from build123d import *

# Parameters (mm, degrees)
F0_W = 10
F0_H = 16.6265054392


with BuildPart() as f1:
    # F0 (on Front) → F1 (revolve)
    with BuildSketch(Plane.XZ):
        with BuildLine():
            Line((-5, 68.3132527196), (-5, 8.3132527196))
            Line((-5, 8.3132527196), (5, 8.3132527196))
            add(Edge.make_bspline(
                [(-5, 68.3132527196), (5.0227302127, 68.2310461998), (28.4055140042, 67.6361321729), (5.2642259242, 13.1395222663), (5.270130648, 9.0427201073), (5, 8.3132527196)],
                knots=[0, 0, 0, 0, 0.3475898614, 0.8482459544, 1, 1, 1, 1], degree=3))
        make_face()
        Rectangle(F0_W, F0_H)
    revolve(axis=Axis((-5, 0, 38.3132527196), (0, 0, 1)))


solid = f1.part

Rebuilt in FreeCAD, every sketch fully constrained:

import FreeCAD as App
import Part
import Sketcher
from FreeCAD import Vector
Q = App.Units.Quantity

doc = App.newDocument("Part")
body = doc.addObject("PartDesign::Body", "Body")

# Sketch on XZ plane
sketch1 = body.newObject("Sketcher::SketchObject", "Sketch")
sketch1.AttachmentSupport = (doc.getObject("XZ_Plane"), [""])
sketch1.MapMode = "FlatFace"
sketch1.addGeometry([
    Part.LineSegment(Vector(-5, 68.313253, 0), Vector(-5, -8.313253, 0)),
    Part.LineSegment(Vector(-5, -8.313253, 0), Vector(5, -8.313253, 0)),
    Part.LineSegment(Vector(5, -8.313253, 0), Vector(5, 8.313253, 0)),
    Part.BSplineCurve([Vector(-5, 68.313253, 0), Vector(5.02273, 68.231046, 0), Vector(28.405514, 67.636132, 0), Vector(5.264226, 13.139522, 0), Vector(5.270131, 9.04272, 0), Vector(5, 8.313253, 0)], [4, 1, 1, 4], [0, 0.347589861, 0.848245954, 1], False, 3, [1, 1, 1, 1, 1, 1], False),
], False)
sketch1.addGeometry(Part.LineSegment(Vector(-5, -8.313253, 0), Vector(-5, 68.313253, 0)), True)  # axis
sketch1.addConstraint([
    Sketcher.Constraint("Block", 3),
    Sketcher.Constraint("Coincident", 0, 2, 1, 1),
    Sketcher.Constraint("Coincident", 1, 2, 2, 1),
    Sketcher.Constraint("Coincident", 2, 2, 3, 2),
    Sketcher.Constraint("Coincident", 3, 1, 0, 1),
    Sketcher.Constraint("Vertical", 0),
    Sketcher.Constraint("Horizontal", 1),
    Sketcher.Constraint("Vertical", 2),
    Sketcher.Constraint("Vertical", 4),
    Sketcher.Constraint("Coincident", 4, 1, 0, 2),
    Sketcher.Constraint("Equal", 0, 4),
    Sketcher.Constraint("DistanceY", 0, 2, 0, 1, Q("76.626505 mm")),
])
revolution = body.newObject("PartDesign::Revolution", "Revolution")
revolution.Profile = sketch1
revolution.ReferenceAxis = (sketch1, ["Axis0"])
revolution.Angle = 360

doc.recompute()
